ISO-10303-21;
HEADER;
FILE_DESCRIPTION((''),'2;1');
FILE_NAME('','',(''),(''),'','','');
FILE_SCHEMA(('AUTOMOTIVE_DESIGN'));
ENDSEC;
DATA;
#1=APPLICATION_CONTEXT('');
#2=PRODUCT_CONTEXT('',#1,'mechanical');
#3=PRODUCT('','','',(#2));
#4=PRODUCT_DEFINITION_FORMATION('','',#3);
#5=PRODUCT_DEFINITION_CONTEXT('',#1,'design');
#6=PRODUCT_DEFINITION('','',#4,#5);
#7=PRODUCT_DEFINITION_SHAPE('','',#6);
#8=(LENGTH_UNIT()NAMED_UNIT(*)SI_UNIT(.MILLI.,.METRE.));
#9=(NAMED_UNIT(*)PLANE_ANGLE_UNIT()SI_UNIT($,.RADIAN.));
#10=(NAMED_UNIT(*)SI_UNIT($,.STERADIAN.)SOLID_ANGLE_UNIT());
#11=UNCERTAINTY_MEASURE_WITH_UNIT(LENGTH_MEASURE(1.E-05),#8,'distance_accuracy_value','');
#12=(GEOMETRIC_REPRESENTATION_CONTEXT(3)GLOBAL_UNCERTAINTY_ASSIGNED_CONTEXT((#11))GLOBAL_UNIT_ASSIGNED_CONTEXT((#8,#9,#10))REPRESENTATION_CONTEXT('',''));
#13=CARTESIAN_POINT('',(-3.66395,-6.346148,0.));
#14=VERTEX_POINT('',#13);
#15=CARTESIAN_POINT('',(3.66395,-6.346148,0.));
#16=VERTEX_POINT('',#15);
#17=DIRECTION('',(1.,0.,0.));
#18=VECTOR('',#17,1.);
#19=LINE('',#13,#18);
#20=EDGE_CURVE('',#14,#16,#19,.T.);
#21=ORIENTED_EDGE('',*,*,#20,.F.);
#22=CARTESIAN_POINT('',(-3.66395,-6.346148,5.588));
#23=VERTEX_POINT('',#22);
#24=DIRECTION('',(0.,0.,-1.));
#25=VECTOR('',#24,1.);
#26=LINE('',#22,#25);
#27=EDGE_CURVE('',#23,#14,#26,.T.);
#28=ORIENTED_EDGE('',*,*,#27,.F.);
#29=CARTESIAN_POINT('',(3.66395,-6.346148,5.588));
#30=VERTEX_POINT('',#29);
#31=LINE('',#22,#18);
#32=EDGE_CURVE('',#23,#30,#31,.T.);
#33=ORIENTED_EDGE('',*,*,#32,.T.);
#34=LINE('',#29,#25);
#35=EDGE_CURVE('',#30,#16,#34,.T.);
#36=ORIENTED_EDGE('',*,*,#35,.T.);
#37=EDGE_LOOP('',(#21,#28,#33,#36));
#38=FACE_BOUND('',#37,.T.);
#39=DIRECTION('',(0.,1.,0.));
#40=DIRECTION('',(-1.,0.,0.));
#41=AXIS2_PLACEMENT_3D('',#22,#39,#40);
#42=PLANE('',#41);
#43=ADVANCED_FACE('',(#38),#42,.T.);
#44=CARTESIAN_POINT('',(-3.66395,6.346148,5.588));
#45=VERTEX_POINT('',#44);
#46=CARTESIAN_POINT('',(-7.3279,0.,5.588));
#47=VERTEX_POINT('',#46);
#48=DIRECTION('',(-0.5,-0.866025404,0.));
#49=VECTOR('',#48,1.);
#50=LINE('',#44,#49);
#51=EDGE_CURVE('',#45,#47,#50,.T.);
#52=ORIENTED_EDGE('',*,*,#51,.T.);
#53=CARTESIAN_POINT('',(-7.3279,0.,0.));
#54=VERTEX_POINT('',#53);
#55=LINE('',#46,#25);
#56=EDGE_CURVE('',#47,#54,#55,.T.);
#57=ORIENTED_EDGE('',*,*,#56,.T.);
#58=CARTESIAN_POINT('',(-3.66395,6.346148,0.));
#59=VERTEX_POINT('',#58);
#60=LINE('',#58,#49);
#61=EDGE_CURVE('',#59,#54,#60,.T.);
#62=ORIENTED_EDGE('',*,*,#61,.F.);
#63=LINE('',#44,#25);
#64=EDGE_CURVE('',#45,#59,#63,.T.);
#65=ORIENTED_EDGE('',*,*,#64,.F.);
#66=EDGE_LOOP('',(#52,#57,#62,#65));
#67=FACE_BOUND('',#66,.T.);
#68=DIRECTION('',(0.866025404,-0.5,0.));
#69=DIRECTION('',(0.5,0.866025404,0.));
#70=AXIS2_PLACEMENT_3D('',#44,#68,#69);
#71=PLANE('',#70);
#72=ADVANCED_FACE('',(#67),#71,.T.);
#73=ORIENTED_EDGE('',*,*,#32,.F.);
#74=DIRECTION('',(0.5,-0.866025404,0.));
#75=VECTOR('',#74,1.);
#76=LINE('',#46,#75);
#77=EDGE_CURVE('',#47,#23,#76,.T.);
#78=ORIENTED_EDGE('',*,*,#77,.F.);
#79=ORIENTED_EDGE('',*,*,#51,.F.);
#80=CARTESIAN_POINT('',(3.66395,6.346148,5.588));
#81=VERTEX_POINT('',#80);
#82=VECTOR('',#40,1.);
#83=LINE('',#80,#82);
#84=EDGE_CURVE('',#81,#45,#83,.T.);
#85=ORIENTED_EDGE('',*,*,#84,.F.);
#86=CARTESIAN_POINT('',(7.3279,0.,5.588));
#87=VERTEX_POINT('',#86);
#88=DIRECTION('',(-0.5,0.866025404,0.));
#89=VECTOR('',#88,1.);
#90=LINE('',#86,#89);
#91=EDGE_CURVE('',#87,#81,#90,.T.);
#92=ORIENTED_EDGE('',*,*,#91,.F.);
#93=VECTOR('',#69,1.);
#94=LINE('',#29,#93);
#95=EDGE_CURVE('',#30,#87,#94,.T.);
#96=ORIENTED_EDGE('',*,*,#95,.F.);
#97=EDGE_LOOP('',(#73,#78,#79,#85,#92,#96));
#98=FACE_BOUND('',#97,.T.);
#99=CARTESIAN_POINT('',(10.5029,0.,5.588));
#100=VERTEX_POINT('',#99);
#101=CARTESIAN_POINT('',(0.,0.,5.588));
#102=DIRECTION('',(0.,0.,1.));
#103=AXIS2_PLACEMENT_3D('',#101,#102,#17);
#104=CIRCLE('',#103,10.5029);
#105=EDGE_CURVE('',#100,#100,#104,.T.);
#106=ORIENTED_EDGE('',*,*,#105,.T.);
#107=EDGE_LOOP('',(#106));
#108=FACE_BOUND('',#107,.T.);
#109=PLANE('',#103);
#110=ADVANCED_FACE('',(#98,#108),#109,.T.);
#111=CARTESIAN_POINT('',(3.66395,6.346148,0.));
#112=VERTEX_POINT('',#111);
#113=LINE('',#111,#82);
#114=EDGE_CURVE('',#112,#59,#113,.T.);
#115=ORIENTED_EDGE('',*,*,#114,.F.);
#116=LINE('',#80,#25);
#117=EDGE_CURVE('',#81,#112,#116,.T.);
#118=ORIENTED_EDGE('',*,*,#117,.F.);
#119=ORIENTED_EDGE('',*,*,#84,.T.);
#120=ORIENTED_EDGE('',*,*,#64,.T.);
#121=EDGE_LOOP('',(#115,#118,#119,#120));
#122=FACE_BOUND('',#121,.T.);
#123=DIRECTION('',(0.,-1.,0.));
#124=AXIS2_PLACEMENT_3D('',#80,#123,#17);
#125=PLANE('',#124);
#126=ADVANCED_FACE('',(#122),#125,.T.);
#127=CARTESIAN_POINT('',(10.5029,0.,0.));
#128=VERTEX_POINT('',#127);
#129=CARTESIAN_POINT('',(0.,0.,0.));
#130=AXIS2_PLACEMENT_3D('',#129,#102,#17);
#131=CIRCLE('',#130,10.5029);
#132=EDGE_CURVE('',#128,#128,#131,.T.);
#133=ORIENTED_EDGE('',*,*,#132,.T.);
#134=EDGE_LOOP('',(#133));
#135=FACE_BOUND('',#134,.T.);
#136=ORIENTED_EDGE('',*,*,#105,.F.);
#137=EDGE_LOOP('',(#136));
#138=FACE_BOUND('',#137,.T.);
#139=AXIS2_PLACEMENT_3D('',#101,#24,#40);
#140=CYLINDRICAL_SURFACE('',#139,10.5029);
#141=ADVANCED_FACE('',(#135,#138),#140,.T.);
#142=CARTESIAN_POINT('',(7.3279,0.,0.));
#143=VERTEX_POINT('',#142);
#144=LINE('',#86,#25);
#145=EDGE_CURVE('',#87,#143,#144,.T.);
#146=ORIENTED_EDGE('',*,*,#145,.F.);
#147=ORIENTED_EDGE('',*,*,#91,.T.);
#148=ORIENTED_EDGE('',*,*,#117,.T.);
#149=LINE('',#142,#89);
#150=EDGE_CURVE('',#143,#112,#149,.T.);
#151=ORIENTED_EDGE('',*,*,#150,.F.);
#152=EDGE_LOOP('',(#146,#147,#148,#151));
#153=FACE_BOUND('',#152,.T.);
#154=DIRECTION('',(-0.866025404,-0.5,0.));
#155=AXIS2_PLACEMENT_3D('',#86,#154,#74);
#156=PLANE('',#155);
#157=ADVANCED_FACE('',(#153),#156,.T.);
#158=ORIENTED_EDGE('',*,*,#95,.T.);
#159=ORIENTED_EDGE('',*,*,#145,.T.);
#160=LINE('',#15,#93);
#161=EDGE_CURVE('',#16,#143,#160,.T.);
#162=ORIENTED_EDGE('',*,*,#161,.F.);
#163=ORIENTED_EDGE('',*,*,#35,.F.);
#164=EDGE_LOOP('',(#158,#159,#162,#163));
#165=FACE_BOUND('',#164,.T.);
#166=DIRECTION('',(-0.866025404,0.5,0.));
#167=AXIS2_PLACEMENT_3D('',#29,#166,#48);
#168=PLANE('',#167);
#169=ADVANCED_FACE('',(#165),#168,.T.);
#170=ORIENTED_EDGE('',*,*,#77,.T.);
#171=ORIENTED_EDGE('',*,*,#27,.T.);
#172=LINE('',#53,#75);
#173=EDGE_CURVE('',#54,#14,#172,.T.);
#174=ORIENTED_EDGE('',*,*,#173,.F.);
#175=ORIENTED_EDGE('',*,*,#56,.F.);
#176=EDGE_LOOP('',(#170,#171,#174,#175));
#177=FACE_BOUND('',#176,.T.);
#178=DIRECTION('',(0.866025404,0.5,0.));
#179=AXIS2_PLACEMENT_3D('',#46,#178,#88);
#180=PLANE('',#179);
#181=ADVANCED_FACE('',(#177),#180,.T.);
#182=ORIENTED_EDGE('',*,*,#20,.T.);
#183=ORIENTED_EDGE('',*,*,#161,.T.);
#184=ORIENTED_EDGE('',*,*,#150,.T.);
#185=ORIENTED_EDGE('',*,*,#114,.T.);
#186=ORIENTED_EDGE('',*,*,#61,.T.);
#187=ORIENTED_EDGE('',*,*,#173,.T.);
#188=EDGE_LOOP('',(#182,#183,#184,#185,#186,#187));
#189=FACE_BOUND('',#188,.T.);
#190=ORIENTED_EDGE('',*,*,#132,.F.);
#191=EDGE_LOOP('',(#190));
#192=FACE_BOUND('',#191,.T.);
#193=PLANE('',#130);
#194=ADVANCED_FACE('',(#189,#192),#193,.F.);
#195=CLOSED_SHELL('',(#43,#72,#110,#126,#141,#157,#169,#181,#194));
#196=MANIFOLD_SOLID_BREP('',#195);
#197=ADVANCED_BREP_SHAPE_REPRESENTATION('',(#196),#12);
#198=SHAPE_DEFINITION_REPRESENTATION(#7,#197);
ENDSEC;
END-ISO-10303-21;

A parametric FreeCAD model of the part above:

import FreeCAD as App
import Part
import Sketcher
Q = App.Units.Quantity

doc = App.newDocument("Part")
body = doc.addObject("PartDesign::Body", "Body")

sketch1 = body.newObject("Sketcher::SketchObject", "Sketch")
sketch1.AttachmentSupport = (doc.getObject("XY_Plane"), [""])
sketch1.MapMode = "FlatFace"
sketch1.addGeometry(Part.Circle(App.Vector(0, 0, 0), App.Vector(0, 0, 1), 10.5029), False)
sketch1.addGeometry(Part.LineSegment(App.Vector(-3.66395, -6.346148, 0), App.Vector(-7.3279, 0, 0)), False)
sketch1.addGeometry(Part.LineSegment(App.Vector(-7.3279, 0, 0), App.Vector(-3.66395, 6.346148, 0)), False)
sketch1.addGeometry(Part.LineSegment(App.Vector(-3.66395, 6.346148, 0), App.Vector(3.66395, 6.346148, 0)), False)
sketch1.addGeometry(Part.LineSegment(App.Vector(3.66395, 6.346148, 0), App.Vector(7.3279, 0, 0)), False)
sketch1.addGeometry(Part.LineSegment(App.Vector(7.3279, 0, 0), App.Vector(3.66395, -6.346148, 0)), False)
sketch1.addGeometry(Part.LineSegment(App.Vector(3.66395, -6.346148, 0), App.Vector(-3.66395, -6.346148, 0)), False)
sketch1.addConstraint(Sketcher.Constraint("Coincident", 1, 2, 2, 1))
sketch1.addConstraint(Sketcher.Constraint("Coincident", 2, 2, 3, 1))
sketch1.addConstraint(Sketcher.Constraint("Coincident", 3, 2, 4, 1))
sketch1.addConstraint(Sketcher.Constraint("Coincident", 4, 2, 5, 1))
sketch1.addConstraint(Sketcher.Constraint("Coincident", 5, 2, 6, 1))
sketch1.addConstraint(Sketcher.Constraint("Coincident", 6, 2, 1, 1))
sketch1.addConstraint(Sketcher.Constraint("Horizontal", 3))
sketch1.addConstraint(Sketcher.Constraint("Horizontal", 6))
sketch1.addConstraint(Sketcher.Constraint("Coincident", 0, 3, -1, 1))
sketch1.addConstraint(Sketcher.Constraint("Symmetric", 1, 2, 4, 2, -1, 1))
sketch1.addConstraint(Sketcher.Constraint("Symmetric", 2, 2, 5, 2, -1, 1))
sketch1.addConstraint(Sketcher.Constraint("PointOnObject", 1, 2, -1))
sketch1.addConstraint(Sketcher.Constraint("Parallel", 1, 4))
sketch1.addConstraint(Sketcher.Constraint("Vertical", 3, 2, 5, 2))
sketch1.addConstraint(Sketcher.Constraint("Diameter", 0, Q("0.827 in")))
sketch1.addConstraint(Sketcher.Constraint("Angle", 1, Q("120 deg")))
sketch1.addConstraint(Sketcher.Constraint("DistanceX", 3, 1, 3, 2, Q("0.2885 in")))
sketch1.addConstraint(Sketcher.Constraint("DistanceX", 1, 2, 4, 2, Q("0.577 in")))
pad1 = body.newObject("PartDesign::Pad", "Pad")
pad1.Profile = sketch1
pad1.Length = Q("0.22 in")

doc.recompute()
